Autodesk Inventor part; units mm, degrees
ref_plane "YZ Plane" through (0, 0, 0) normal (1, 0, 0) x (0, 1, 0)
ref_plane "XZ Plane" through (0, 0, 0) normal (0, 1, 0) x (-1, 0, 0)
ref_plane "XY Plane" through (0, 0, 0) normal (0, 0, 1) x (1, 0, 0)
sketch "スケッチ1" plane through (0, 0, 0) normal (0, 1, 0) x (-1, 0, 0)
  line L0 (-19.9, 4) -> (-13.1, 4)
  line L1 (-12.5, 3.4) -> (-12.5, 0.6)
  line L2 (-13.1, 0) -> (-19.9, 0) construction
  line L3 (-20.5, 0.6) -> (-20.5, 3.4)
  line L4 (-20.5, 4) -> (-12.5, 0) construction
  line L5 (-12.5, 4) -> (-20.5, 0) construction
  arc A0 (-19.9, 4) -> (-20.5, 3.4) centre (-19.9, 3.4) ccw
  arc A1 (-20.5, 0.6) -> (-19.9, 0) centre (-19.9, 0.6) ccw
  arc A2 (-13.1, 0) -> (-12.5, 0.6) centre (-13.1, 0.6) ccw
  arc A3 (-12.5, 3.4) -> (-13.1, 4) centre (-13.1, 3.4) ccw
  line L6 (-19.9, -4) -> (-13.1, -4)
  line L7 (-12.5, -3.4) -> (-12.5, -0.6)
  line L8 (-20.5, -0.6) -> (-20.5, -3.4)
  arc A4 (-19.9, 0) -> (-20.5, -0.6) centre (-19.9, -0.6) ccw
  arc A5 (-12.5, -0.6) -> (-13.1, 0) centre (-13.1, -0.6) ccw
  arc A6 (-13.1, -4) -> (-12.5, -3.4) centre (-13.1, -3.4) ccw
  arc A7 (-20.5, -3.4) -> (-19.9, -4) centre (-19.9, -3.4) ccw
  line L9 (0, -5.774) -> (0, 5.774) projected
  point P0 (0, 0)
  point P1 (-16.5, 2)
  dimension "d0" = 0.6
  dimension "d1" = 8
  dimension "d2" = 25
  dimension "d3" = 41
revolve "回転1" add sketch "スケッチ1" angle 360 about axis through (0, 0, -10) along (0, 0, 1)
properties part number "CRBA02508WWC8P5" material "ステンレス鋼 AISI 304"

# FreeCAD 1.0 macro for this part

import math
import FreeCAD as App
import Part
import Sketcher

V = App.Vector
Q = App.Units.Quantity

doc = App.newDocument("Part")
body = doc.addObject("PartDesign::Body", "Body")

sketch1 = doc.addObject("Sketcher::SketchObject", "Sketch")
body.addObject(sketch1)
sketch1.AttachmentSupport = (doc.XZ_Plane, [""])
sketch1.MapMode = "FlatFace"
sketch1.addGeometry(Part.LineSegment(V(13.1, 4, 0), V(19.9, 4, 0)), False)
sketch1.addGeometry(Part.ArcOfCircle(Part.Circle(V(19.9, 3.4, 0), V(0, 0, 1), 0.6), math.radians(0), math.radians(90)), False)
sketch1.addGeometry(Part.LineSegment(V(20.5, 3.4, 0), V(20.5, 0.6, 0)), False)
sketch1.addGeometry(Part.ArcOfCircle(Part.Circle(V(19.9, 0.6, 0), V(0, 0, 1), 0.6), math.radians(-90), math.radians(0)), False)
sketch1.addGeometry(Part.ArcOfCircle(Part.Circle(V(19.9, -0.6, 0), V(0, 0, 1), 0.6), math.radians(0), math.radians(90)), False)
sketch1.addGeometry(Part.LineSegment(V(20.5, -0.6, 0), V(20.5, -3.4, 0)), False)
sketch1.addGeometry(Part.ArcOfCircle(Part.Circle(V(19.9, -3.4, 0), V(0, 0, 1), 0.6), math.radians(-90), math.radians(0)), False)
sketch1.addGeometry(Part.LineSegment(V(19.9, -4, 0), V(13.1, -4, 0)), False)
sketch1.addGeometry(Part.ArcOfCircle(Part.Circle(V(13.1, -3.4, 0), V(0, 0, 1), 0.6), math.radians(180), math.radians(270)), False)
sketch1.addGeometry(Part.LineSegment(V(12.5, -3.4, 0), V(12.5, -0.6, 0)), False)
sketch1.addGeometry(Part.ArcOfCircle(Part.Circle(V(13.1, -0.6, 0), V(0, 0, 1), 0.6), math.radians(90), math.radians(180)), False)
sketch1.addGeometry(Part.ArcOfCircle(Part.Circle(V(13.1, 0.6, 0), V(0, 0, 1), 0.6), math.radians(180), math.radians(270)), False)
sketch1.addGeometry(Part.LineSegment(V(12.5, 0.6, 0), V(12.5, 3.4, 0)), False)
sketch1.addGeometry(Part.ArcOfCircle(Part.Circle(V(13.1, 3.4, 0), V(0, 0, 1), 0.6), math.radians(90), math.radians(180)), False)
sketch1.addConstraint(Sketcher.Constraint("Tangent", 0, 2, 1, 2))
sketch1.addConstraint(Sketcher.Constraint("Tangent", 1, 1, 2, 1))
sketch1.addConstraint(Sketcher.Constraint("Tangent", 2, 2, 3, 2))
sketch1.addConstraint(Sketcher.Constraint("Tangent", 3, 1, 4, 2))
sketch1.addConstraint(Sketcher.Constraint("Tangent", 4, 1, 5, 1))
sketch1.addConstraint(Sketcher.Constraint("Tangent", 5, 2, 6, 2))
sketch1.addConstraint(Sketcher.Constraint("Tangent", 6, 1, 7, 1))
sketch1.addConstraint(Sketcher.Constraint("Tangent", 7, 2, 8, 2))
sketch1.addConstraint(Sketcher.Constraint("Tangent", 8, 1, 9, 1))
sketch1.addConstraint(Sketcher.Constraint("Tangent", 9, 2, 10, 2))
sketch1.addConstraint(Sketcher.Constraint("Tangent", 10, 1, 11, 2))
sketch1.addConstraint(Sketcher.Constraint("Tangent", 11, 1, 12, 1))
sketch1.addConstraint(Sketcher.Constraint("Tangent", 12, 2, 13, 2))
sketch1.addConstraint(Sketcher.Constraint("Tangent", 13, 1, 0, 1))
sketch1.addConstraint(Sketcher.Constraint("Horizontal", 0))
sketch1.addConstraint(Sketcher.Constraint("Vertical", 2))
sketch1.addConstraint(Sketcher.Constraint("Vertical", 5))
sketch1.addConstraint(Sketcher.Constraint("Horizontal", 7))
sketch1.addConstraint(Sketcher.Constraint("Vertical", 9))
sketch1.addConstraint(Sketcher.Constraint("Vertical", 12))
sketch1.addConstraint(Sketcher.Constraint("Equal", 1, 3))
sketch1.addConstraint(Sketcher.Constraint("Equal", 3, 4))
sketch1.addConstraint(Sketcher.Constraint("Equal", 4, 6))
sketch1.addConstraint(Sketcher.Constraint("Equal", 6, 8))
sketch1.addConstraint(Sketcher.Constraint("Equal", 8, 10))
sketch1.addConstraint(Sketcher.Constraint("Equal", 10, 11))
sketch1.addConstraint(Sketcher.Constraint("Equal", 11, 13))
sketch1.addConstraint(Sketcher.Constraint("Symmetric", 3, 3, 4, 3, -1))
sketch1.addConstraint(Sketcher.Constraint("Symmetric", 10, 3, 11, 3, -1))
sketch1.addConstraint(Sketcher.Constraint("Equal", 2, 5))
sketch1.addConstraint(Sketcher.Constraint("Radius", 1, Q("0.6 mm")))
sketch1.addConstraint(Sketcher.Constraint("DistanceX", 0, 1, 0, 2, Q("6.8 mm")))
sketch1.addConstraint(Sketcher.Constraint("DistanceY", 2, 2, 2, 1, Q("2.8 mm")))
sketch1.addConstraint(Sketcher.Constraint("DistanceX", -1, 1, 1, 3, Q("19.9 mm")))
revolution = doc.addObject("PartDesign::Revolution", "Revolution")
body.addObject(revolution)
revolution.Profile = sketch1
revolution.ReferenceAxis = (sketch1, ["V_Axis"])
revolution.Angle = 360

doc.recompute()
